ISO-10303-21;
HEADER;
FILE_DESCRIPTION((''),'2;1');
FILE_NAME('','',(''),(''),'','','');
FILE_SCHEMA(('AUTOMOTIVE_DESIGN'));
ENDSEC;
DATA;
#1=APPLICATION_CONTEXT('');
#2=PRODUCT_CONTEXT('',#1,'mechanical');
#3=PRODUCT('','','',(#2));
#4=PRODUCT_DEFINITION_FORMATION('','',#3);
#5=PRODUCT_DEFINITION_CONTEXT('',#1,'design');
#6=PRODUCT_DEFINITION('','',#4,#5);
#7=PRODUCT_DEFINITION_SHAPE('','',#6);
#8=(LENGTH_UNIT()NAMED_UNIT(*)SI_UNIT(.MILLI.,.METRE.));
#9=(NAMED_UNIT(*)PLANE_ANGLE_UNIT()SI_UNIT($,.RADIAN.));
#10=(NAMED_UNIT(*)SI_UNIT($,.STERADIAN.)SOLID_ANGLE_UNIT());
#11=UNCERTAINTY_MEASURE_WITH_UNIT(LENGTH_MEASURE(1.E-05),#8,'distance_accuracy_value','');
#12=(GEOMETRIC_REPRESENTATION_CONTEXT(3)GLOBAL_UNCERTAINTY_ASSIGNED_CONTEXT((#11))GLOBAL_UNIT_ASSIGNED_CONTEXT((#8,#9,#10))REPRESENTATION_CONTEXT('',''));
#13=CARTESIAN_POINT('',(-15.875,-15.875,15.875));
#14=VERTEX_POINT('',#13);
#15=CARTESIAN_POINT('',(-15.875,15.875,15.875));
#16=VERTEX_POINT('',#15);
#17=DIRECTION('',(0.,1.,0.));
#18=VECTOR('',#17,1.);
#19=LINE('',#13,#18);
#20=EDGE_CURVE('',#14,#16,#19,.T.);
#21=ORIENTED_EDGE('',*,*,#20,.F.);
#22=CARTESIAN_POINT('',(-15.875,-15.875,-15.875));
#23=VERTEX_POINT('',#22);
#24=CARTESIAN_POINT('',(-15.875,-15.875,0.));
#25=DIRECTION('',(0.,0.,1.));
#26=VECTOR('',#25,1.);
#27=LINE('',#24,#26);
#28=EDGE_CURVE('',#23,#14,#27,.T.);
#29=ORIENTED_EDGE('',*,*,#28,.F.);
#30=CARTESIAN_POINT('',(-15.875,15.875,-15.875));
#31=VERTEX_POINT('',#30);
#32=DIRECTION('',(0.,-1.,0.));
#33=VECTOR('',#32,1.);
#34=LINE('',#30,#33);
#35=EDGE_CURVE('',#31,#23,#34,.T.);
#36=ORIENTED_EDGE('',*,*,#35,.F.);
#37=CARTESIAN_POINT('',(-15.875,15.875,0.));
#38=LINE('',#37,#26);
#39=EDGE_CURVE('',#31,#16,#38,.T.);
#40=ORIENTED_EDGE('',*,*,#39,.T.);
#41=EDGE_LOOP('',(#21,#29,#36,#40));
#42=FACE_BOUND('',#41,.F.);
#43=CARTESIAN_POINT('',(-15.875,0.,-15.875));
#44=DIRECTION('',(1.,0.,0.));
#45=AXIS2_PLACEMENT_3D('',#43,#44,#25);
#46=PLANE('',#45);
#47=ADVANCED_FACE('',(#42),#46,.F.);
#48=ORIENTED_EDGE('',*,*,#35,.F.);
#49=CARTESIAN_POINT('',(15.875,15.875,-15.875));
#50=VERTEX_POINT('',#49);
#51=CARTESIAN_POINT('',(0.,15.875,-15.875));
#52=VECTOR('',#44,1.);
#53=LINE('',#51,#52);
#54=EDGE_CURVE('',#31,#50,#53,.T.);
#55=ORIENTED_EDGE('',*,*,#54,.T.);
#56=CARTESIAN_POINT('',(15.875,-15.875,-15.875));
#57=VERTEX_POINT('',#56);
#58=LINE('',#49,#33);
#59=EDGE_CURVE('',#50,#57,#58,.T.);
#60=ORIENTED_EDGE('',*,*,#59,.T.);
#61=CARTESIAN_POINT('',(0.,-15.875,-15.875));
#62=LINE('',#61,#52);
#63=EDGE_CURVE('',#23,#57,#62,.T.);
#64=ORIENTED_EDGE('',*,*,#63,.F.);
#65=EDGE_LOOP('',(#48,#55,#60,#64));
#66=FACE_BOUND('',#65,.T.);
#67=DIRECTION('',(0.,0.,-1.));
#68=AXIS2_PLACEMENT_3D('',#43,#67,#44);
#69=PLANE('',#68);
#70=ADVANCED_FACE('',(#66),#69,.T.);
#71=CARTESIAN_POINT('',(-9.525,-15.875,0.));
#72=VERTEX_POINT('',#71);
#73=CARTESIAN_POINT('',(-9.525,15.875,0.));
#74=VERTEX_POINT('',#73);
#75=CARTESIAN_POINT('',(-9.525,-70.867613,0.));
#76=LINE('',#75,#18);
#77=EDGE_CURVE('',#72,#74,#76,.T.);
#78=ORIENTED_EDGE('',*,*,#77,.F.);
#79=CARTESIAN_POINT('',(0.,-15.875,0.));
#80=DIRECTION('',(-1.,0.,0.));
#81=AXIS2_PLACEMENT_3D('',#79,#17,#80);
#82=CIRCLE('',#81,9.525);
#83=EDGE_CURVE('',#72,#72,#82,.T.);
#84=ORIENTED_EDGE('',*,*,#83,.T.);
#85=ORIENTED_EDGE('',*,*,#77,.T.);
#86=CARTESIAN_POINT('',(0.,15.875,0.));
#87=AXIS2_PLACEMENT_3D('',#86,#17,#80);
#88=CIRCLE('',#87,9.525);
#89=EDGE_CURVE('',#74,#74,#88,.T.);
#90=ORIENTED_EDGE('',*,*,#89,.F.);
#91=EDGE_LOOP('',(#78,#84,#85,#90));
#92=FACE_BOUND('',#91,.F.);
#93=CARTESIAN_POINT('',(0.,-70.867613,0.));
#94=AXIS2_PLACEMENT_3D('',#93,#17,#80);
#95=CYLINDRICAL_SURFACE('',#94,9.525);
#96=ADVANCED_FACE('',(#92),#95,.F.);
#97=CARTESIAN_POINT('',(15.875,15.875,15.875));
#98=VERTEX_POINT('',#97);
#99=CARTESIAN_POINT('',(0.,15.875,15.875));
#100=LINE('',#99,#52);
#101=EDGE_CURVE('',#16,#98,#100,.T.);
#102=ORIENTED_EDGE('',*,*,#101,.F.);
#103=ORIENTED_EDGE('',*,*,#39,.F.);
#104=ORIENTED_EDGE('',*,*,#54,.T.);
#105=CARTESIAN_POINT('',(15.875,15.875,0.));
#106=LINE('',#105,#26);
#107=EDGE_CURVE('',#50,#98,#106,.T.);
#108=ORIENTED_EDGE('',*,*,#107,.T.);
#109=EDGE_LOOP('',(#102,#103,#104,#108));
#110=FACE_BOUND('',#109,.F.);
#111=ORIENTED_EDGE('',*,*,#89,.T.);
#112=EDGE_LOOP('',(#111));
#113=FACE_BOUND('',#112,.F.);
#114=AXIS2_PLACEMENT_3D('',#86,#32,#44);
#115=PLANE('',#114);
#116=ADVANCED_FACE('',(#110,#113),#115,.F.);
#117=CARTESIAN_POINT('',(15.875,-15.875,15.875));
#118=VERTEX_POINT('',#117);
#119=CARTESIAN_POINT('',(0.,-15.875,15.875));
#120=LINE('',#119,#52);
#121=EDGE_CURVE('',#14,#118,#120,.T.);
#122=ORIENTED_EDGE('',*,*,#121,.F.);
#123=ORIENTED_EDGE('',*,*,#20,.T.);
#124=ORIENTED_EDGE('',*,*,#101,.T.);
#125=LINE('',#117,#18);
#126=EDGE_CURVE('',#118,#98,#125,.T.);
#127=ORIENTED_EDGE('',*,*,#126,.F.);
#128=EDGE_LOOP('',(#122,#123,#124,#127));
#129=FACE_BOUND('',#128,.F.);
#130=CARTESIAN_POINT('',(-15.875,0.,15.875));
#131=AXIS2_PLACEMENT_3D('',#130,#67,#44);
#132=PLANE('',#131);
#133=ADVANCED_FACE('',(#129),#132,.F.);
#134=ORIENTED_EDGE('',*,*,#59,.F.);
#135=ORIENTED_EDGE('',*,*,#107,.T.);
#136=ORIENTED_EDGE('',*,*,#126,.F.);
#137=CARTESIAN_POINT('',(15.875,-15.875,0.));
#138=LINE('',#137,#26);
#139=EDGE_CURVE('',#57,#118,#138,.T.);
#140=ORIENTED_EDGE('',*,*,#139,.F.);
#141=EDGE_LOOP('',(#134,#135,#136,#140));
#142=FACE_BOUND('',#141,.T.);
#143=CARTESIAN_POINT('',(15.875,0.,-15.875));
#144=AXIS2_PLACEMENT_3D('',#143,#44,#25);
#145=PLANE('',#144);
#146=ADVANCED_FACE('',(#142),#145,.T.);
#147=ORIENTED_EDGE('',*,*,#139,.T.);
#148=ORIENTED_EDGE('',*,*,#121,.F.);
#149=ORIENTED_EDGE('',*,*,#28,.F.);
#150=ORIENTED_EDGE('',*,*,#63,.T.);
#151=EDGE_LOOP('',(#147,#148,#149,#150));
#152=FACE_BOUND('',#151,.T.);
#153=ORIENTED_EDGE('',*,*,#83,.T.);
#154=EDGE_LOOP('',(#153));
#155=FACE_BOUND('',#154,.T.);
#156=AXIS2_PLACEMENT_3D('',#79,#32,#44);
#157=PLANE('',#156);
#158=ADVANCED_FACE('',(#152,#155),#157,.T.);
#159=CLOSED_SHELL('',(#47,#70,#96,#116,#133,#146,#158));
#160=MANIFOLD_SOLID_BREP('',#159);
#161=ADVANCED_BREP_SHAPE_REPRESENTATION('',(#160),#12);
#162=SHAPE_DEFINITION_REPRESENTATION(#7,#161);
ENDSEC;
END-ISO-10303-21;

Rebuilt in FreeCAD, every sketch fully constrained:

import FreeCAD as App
import Part
import Sketcher
from FreeCAD import Vector
Q = App.Units.Quantity

doc = App.newDocument("Part")
body = doc.addObject("PartDesign::Body", "Body")

# Sketch on XZ plane
sketch1 = doc.addObject("Sketcher::SketchObject", "Sketch")
body.addObject(sketch1)
sketch1.AttachmentSupport = (doc.XZ_Plane, [""])
sketch1.MapMode = "FlatFace"
sketch1.addGeometry(Part.LineSegment(Vector(-16, 16, 0), Vector(-16, -16, 0)), False)
sketch1.addGeometry(Part.LineSegment(Vector(-16, -16, 0), Vector(16, -16, 0)), False)
sketch1.addGeometry(Part.LineSegment(Vector(16, -16, 0), Vector(16, 16, 0)), False)
sketch1.addGeometry(Part.LineSegment(Vector(16, 16, 0), Vector(-16, 16, 0)), False)
sketch1.addConstraint(Sketcher.Constraint("Coincident", 0, 2, 1, 1))
sketch1.addConstraint(Sketcher.Constraint("Coincident", 1, 2, 2, 1))
sketch1.addConstraint(Sketcher.Constraint("Coincident", 2, 2, 3, 1))
sketch1.addConstraint(Sketcher.Constraint("Coincident", 3, 2, 0, 1))
sketch1.addConstraint(Sketcher.Constraint("Vertical", 0))
sketch1.addConstraint(Sketcher.Constraint("Horizontal", 1))
sketch1.addConstraint(Sketcher.Constraint("Vertical", 2))
sketch1.addConstraint(Sketcher.Constraint("Horizontal", 3))
sketch1.addConstraint(Sketcher.Constraint("Symmetric", 0, 2, 2, 2, -1, 1))
sketch1.addConstraint(Sketcher.Constraint("Equal", 3, 0))
sketch1.addConstraint(Sketcher.Constraint("DistanceX", 1, 1, 1, 2, Q("1.25 in")))
pad1 = doc.addObject("PartDesign::Pad", "Pad")
body.addObject(pad1)
pad1.Profile = sketch1
pad1.Length = Q("1.25 in")
pad1.Midplane = True

# Sketch on XZ plane
sketch2 = doc.addObject("Sketcher::SketchObject", "Sketch001")
body.addObject(sketch2)
sketch2.AttachmentSupport = (doc.XZ_Plane, [""])
sketch2.MapMode = "FlatFace"
sketch2.AttachmentOffset = App.Placement(Vector(0, 0, 0.625 * 25.4), App.Rotation())
sketch2.addGeometry(Part.Circle(Vector(0, 0, 0), Vector(0, 0, 1), 10), False)
sketch2.addConstraint(Sketcher.Constraint("Coincident", 0, 3, -1, 1))
sketch2.addConstraint(Sketcher.Constraint("Diameter", 0, Q("0.75 in")))
doc.recompute()
hole = doc.addObject("PartDesign::Hole", "Hole")
body.addObject(hole)
hole.Profile = sketch2
hole.ThreadType = "None"
hole.Diameter = Q("0.75 in")
hole.DepthType = "ThroughAll"

doc.recompute()
